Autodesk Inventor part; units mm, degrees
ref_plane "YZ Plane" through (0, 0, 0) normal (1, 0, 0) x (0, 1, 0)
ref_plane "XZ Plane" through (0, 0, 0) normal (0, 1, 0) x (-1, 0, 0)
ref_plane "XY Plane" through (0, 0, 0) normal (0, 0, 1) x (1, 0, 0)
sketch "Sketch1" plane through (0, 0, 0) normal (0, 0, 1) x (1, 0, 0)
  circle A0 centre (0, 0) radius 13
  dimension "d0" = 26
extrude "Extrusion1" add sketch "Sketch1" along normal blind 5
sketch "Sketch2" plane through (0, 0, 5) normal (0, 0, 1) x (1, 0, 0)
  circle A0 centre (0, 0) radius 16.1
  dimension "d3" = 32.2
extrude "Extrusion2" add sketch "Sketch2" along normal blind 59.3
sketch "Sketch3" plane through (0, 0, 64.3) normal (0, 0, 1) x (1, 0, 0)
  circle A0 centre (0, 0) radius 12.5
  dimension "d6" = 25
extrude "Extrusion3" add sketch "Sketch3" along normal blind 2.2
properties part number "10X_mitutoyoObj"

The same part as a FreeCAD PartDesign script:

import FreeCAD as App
import Part
import Sketcher
from FreeCAD import Vector

doc = App.newDocument("Part")
body = doc.addObject("PartDesign::Body", "Body")

sketch1 = body.newObject("Sketcher::SketchObject", "Sketch")
sketch1.AttachmentSupport = (doc.getObject("XY_Plane"), [""])
sketch1.MapMode = "FlatFace"
sketch1.addGeometry(Part.Circle(Vector(0, 0, 0), Vector(0, 0, 1), 13), False)
sketch1.addConstraint([
    Sketcher.Constraint("Coincident", 0, 3, -1, 1),
    Sketcher.Constraint("Diameter", 0, 26.0),
])
pad1 = body.newObject("PartDesign::Pad", "Pad")
pad1.Profile = sketch1
pad1.Length = 5

sketch2 = body.newObject("Sketcher::SketchObject", "Sketch001")
sketch2.AttachmentSupport = (doc.getObject("XY_Plane"), [""])
sketch2.MapMode = "FlatFace"
sketch2.AttachmentOffset = App.Placement(Vector(0, 0, 5), App.Rotation())
sketch2.addGeometry(Part.Circle(Vector(0, 0, 0), Vector(0, 0, 1), 16), False)
sketch2.addConstraint([
    Sketcher.Constraint("Coincident", 0, 3, -1, 1),
    Sketcher.Constraint("Diameter", 0, 32.2),
])
pad2 = body.newObject("PartDesign::Pad", "Pad001")
pad2.Profile = sketch2
pad2.Length = 59.3

sketch3 = body.newObject("Sketcher::SketchObject", "Sketch002")
sketch3.AttachmentSupport = (doc.getObject("XY_Plane"), [""])
sketch3.MapMode = "FlatFace"
sketch3.AttachmentOffset = App.Placement(Vector(0, 0, 64.3), App.Rotation())
sketch3.addGeometry(Part.Circle(Vector(0, 0, 0), Vector(0, 0, 1), 12), False)
sketch3.addConstraint([
    Sketcher.Constraint("Coincident", 0, 3, -1, 1),
    Sketcher.Constraint("Diameter", 0, 25.0),
])
pad3 = body.newObject("PartDesign::Pad", "Pad002")
pad3.Profile = sketch3
pad3.Length = 2.2

doc.recompute()
